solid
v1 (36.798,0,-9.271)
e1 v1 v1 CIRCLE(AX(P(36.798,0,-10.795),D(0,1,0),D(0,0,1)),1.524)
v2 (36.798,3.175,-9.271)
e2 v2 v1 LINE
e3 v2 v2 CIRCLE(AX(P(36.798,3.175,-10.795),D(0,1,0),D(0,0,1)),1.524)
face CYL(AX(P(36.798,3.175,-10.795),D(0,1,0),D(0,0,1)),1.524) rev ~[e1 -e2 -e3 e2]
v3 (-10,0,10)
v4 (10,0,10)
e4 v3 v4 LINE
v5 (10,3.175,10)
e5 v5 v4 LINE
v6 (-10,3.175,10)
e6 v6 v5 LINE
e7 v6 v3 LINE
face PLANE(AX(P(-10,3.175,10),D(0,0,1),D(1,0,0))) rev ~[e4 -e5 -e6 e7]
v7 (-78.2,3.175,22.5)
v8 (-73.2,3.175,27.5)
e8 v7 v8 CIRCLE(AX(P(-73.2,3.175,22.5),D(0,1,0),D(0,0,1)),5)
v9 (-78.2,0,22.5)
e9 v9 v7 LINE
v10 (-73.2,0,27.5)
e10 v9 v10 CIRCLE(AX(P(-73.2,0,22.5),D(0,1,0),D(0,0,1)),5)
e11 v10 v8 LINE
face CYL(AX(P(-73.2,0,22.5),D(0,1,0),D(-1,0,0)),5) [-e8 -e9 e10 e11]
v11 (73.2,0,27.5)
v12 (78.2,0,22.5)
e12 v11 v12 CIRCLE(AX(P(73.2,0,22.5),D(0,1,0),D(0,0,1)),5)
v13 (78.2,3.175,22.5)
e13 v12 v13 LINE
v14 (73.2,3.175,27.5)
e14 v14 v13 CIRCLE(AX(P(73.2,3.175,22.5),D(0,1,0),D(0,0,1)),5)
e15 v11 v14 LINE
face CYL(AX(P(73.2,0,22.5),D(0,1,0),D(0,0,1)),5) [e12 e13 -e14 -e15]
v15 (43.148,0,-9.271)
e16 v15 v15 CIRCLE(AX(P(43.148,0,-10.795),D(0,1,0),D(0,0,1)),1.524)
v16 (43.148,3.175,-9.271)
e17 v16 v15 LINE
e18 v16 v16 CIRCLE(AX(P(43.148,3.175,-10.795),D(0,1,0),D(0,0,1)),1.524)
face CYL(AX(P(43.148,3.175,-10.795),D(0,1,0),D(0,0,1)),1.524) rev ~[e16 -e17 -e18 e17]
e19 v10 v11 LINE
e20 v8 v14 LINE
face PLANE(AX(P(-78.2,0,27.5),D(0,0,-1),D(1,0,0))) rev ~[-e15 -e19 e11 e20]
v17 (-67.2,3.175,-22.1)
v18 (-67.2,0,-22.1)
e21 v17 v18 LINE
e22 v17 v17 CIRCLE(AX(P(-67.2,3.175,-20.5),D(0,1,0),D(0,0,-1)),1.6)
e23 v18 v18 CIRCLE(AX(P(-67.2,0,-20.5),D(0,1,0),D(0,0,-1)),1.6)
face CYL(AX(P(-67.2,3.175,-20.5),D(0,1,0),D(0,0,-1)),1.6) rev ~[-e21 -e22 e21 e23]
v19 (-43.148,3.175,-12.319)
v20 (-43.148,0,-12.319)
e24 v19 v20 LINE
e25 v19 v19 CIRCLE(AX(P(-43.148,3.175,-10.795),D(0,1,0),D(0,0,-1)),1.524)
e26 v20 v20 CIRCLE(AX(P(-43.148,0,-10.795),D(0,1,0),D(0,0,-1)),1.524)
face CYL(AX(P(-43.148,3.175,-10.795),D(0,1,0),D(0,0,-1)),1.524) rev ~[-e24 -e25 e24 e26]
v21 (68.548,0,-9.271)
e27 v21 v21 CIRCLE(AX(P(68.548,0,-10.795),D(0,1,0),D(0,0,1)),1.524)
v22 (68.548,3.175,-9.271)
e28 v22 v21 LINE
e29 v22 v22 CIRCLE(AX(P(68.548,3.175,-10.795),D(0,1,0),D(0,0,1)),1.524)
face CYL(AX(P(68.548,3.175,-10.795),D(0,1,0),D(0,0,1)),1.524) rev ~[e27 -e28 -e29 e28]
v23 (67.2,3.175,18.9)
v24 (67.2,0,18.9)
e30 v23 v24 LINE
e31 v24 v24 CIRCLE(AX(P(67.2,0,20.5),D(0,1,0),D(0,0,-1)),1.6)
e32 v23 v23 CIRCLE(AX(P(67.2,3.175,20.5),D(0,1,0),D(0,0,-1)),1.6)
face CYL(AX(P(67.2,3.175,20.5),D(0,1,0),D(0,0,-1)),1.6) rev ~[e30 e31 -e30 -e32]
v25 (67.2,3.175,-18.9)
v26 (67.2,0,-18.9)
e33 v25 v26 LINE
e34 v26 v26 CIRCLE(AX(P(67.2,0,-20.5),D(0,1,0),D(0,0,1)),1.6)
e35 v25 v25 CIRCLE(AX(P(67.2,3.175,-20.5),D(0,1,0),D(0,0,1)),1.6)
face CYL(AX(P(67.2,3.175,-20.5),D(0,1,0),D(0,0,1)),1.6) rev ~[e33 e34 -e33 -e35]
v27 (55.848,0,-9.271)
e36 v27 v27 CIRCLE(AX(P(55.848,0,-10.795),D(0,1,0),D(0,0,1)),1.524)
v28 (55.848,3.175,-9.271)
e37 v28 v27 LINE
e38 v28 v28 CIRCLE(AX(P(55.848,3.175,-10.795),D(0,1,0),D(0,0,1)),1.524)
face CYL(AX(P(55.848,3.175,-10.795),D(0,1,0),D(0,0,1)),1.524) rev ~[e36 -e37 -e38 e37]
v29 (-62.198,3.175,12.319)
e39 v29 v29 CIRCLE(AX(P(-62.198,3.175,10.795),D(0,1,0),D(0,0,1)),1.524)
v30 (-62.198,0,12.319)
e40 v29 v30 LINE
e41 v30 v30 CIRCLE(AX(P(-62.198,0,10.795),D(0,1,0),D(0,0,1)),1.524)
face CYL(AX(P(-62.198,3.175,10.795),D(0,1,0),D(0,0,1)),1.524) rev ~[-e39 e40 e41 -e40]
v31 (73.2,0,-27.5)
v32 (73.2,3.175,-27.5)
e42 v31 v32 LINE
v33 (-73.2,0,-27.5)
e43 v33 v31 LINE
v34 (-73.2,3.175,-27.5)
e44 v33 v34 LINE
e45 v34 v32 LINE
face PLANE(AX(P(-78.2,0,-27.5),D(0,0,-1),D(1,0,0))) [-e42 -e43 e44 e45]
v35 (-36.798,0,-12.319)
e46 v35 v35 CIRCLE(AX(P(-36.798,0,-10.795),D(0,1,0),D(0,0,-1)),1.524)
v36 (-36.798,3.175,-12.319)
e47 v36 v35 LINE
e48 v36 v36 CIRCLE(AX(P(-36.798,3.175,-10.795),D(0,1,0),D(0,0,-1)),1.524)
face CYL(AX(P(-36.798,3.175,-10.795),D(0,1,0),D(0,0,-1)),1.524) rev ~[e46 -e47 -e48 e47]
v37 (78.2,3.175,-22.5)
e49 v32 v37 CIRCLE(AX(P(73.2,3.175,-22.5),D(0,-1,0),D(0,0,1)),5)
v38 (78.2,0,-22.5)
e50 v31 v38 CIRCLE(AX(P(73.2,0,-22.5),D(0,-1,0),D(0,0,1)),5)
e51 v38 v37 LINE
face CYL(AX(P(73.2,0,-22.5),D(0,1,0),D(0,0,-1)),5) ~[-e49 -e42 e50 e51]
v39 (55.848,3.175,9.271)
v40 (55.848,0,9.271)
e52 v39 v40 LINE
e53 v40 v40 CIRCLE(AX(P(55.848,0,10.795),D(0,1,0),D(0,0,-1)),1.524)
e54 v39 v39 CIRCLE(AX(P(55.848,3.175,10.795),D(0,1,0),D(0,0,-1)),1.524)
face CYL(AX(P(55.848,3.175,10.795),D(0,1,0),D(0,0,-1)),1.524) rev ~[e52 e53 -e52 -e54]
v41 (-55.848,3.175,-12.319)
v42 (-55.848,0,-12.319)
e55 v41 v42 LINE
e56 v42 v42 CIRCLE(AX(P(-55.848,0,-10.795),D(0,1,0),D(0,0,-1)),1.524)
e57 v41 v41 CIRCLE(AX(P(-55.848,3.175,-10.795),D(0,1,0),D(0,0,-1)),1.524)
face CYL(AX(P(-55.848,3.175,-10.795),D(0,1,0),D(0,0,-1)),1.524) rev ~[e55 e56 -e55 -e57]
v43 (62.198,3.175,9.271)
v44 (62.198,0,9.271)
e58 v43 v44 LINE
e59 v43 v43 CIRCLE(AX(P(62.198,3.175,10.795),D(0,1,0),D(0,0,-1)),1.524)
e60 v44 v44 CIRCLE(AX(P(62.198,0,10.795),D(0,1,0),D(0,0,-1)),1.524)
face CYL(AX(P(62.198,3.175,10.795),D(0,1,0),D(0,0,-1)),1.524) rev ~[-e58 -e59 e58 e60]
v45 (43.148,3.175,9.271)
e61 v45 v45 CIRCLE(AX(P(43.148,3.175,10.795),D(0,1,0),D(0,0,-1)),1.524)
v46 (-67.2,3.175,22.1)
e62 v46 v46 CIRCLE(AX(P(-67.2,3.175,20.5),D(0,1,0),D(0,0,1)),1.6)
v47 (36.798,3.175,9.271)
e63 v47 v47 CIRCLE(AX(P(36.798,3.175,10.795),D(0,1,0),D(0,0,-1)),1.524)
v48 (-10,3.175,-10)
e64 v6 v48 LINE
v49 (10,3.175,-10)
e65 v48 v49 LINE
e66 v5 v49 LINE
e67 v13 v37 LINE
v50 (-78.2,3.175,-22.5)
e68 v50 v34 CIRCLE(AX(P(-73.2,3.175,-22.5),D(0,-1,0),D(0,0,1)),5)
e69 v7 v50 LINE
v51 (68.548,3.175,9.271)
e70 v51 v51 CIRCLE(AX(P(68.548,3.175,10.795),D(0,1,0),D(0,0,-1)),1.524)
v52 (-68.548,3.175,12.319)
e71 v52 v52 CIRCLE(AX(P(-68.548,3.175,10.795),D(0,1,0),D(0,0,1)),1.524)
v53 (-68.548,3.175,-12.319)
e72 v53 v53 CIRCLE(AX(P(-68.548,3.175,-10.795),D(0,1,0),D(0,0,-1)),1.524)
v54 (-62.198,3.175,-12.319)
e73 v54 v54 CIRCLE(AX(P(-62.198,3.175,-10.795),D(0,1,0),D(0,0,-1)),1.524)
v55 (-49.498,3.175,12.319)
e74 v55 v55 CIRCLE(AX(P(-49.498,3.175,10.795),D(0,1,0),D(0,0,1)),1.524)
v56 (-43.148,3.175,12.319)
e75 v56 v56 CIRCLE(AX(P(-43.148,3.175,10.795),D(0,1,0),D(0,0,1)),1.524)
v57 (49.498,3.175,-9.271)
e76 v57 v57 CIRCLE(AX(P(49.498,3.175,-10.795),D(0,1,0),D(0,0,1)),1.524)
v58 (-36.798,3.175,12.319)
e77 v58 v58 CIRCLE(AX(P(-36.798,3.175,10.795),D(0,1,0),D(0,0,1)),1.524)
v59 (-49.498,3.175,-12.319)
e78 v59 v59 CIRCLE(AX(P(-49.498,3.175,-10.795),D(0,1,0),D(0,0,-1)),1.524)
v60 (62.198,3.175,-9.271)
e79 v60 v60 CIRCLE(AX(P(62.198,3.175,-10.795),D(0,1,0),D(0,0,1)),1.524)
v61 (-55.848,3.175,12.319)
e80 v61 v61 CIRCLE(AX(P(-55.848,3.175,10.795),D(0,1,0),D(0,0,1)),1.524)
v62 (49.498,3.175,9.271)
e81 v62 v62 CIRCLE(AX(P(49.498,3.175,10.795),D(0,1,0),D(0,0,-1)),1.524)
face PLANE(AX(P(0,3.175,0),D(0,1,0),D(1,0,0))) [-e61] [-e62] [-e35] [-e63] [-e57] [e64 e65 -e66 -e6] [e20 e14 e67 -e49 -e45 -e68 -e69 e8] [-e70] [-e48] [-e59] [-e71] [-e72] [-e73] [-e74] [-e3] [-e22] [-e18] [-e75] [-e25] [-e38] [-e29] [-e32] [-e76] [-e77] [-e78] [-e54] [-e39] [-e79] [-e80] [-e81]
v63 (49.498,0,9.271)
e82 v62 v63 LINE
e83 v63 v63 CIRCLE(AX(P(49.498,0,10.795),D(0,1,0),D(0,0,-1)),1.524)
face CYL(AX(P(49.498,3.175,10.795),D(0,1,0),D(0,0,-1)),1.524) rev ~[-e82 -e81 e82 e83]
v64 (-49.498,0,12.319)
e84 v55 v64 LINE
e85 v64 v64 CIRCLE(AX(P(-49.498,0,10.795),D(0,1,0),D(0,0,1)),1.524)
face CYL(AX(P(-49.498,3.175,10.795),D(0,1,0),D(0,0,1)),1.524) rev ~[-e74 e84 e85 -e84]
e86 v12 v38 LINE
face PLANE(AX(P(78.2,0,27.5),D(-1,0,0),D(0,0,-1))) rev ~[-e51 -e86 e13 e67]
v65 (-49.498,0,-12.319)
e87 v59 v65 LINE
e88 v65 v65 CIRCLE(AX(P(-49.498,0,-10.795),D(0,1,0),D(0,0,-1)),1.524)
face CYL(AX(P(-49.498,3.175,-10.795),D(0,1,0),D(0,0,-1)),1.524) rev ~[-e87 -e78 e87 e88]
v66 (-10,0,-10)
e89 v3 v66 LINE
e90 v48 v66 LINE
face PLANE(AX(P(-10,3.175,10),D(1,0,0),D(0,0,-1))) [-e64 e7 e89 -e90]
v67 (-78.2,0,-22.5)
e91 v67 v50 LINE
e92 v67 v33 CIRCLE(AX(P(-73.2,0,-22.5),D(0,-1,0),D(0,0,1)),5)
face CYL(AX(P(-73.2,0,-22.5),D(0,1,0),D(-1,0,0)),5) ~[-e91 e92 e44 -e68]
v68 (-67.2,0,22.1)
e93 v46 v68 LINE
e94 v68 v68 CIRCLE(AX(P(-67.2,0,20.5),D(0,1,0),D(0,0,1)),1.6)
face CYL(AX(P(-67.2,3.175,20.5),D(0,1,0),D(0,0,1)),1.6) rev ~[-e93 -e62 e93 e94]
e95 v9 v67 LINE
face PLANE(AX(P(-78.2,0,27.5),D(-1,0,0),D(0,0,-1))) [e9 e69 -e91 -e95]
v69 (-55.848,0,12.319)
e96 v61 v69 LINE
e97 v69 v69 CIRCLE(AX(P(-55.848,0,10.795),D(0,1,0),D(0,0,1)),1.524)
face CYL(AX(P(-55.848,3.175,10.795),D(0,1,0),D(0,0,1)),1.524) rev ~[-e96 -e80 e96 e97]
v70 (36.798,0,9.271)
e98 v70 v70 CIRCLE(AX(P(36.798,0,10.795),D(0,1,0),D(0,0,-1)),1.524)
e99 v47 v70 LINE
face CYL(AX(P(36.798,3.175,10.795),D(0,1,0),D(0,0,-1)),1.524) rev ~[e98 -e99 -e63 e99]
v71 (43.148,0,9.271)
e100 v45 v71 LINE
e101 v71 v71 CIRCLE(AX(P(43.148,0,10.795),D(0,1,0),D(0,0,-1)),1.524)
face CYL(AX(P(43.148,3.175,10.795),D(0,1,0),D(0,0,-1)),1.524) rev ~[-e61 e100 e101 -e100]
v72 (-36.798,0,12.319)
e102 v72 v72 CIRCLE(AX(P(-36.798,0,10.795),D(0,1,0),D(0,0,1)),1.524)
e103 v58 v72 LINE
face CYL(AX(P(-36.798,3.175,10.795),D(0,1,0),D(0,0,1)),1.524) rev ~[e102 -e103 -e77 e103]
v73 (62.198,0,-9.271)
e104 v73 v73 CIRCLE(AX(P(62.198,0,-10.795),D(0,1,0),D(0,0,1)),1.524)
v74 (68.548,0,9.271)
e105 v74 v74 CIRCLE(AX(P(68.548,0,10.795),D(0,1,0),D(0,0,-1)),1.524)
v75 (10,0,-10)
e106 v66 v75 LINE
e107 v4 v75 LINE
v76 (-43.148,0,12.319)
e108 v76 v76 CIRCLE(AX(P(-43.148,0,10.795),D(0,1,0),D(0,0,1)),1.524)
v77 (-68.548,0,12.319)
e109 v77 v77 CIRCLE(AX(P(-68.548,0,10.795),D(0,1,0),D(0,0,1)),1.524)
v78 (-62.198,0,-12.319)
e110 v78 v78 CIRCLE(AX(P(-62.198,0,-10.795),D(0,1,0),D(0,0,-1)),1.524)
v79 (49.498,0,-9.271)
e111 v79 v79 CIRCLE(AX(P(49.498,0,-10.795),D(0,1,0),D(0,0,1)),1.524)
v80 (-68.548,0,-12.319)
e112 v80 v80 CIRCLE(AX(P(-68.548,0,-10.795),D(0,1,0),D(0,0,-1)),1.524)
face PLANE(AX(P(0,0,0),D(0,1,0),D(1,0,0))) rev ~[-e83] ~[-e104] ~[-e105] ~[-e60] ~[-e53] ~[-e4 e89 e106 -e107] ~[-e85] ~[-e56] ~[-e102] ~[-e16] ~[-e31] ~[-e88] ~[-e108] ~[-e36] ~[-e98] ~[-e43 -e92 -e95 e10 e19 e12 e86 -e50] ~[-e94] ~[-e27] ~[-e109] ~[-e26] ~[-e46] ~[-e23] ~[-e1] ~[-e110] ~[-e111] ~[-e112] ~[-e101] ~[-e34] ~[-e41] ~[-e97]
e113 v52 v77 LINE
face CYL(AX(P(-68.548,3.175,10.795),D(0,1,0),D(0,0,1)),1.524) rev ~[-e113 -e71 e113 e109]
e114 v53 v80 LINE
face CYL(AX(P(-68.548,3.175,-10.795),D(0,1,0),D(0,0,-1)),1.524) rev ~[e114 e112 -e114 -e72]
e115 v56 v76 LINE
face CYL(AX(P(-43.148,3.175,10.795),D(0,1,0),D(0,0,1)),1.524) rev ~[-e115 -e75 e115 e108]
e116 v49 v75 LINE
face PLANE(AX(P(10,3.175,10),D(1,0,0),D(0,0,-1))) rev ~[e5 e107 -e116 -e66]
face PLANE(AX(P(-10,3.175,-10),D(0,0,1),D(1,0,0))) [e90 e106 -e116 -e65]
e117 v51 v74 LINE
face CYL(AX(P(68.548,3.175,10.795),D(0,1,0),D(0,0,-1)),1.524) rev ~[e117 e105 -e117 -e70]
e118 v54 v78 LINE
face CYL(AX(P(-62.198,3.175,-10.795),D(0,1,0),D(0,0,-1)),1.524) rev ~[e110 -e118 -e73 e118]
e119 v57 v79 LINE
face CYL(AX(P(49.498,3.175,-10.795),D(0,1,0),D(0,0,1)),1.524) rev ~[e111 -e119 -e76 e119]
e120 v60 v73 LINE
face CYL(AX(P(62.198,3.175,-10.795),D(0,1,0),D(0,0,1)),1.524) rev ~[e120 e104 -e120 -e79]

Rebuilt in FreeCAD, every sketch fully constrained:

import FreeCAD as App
import Part
import Sketcher
from FreeCAD import Vector


def edges_at(feature, points):
    """Names of the edges that pass closest to the given points."""
    edges = feature.Shape.Edges
    near = lambda p: min(range(len(edges)), key=lambda i: edges[i].distToShape(Part.Vertex(*p))[0])
    return sorted({f"Edge{near(p) + 1}" for p in points})

doc = App.newDocument("Part")
params = doc.addObject("Spreadsheet::Sheet", "Params")
for row, (alias, value) in enumerate([
    ("sketch1_height", "55 mm"),
    ("sketch1_width", "156.4 mm"),
    ("pad1_length", "3.175 mm"),
    ("sketch3_diameter", "3.2 mm"),
    ("sketch4_width", "20 mm"),
    ("fillet_radius", "5 mm"),
], start=1):
    params.set(f"A{row}", alias)
    params.set(f"B{row}", "=" + value)
    params.setAlias(f"B{row}", alias)

body = doc.addObject("PartDesign::Body", "Body")

sketch1 = body.newObject("Sketcher::SketchObject", "Sketch")
sketch1.AttachmentSupport = (doc.getObject("XZ_Plane"), [""])
sketch1.MapMode = "FlatFace"
sketch1.addGeometry([
    Part.LineSegment(Vector(-78, -28, 0), Vector(-78, 28, 0)),
    Part.LineSegment(Vector(-78, 28, 0), Vector(78, 28, 0)),
    Part.LineSegment(Vector(78, 28, 0), Vector(78, -28, 0)),
    Part.LineSegment(Vector(78, -28, 0), Vector(-78, -28, 0)),
], False)
sketch1.addConstraint([
    Sketcher.Constraint("Coincident", 0, 2, 1, 1),
    Sketcher.Constraint("Coincident", 1, 2, 2, 1),
    Sketcher.Constraint("Coincident", 2, 2, 3, 1),
    Sketcher.Constraint("Coincident", 3, 2, 0, 1),
    Sketcher.Constraint("Vertical", 0),
    Sketcher.Constraint("Horizontal", 1),
    Sketcher.Constraint("Vertical", 2),
    Sketcher.Constraint("Horizontal", 3),
    Sketcher.Constraint("Symmetric", 0, 2, 2, 2, -1, 1),
    Sketcher.Constraint("DistanceY", 0, 1, 0, 2, 55.0),
    Sketcher.Constraint("DistanceX", 1, 1, 1, 2, 156.4),
])
sketch1.setExpression("Constraints[9]", "Params.sketch1_height")
sketch1.setExpression("Constraints[10]", "Params.sketch1_width")
pad1 = body.newObject("PartDesign::Pad", "Pad")
pad1.Profile = sketch1
pad1.setExpression("Length", "Params.pad1_length")
pad1.Reversed = True

sketch2 = body.newObject("Sketcher::SketchObject", "Sketch001")
sketch2.AttachmentSupport = (doc.getObject("XZ_Plane"), [""])
sketch2.MapMode = "FlatFace"
sketch2.AttachmentOffset = App.Placement(Vector(0, 0, -3.175), App.Rotation())
sketch2.addGeometry([
    Part.Circle(Vector(-68.5, 10.8, 0), Vector(0, 0, 1), 1.5),
    Part.Circle(Vector(-62.2, 10.8, 0), Vector(0, 0, 1), 1.5),
    Part.Circle(Vector(-55.8, 10.8, 0), Vector(0, 0, 1), 1.5),
    Part.Circle(Vector(-49.5, 10.8, 0), Vector(0, 0, 1), 1.5),
    Part.Circle(Vector(-43.1, 10.8, 0), Vector(0, 0, 1), 1.5),
    Part.Circle(Vector(-36.8, 10.8, 0), Vector(0, 0, 1), 1.5),
    Part.Circle(Vector(-68.5, -10.8, 0), Vector(0, 0, 1), 1.5),
    Part.Circle(Vector(-62.2, -10.8, 0), Vector(0, 0, 1), 1.5),
    Part.Circle(Vector(-55.8, -10.8, 0), Vector(0, 0, 1), 1.5),
    Part.Circle(Vector(-49.5, -10.8, 0), Vector(0, 0, 1), 1.5),
    Part.Circle(Vector(-43.1, -10.8, 0), Vector(0, 0, 1), 1.5),
    Part.Circle(Vector(-36.8, -10.8, 0), Vector(0, 0, 1), 1.5),
    Part.Circle(Vector(36.8, -10.8, 0), Vector(0, 0, 1), 1.5),
    Part.Circle(Vector(43.1, -10.8, 0), Vector(0, 0, 1), 1.5),
    Part.Circle(Vector(49.5, -10.8, 0), Vector(0, 0, 1), 1.5),
    Part.Circle(Vector(55.8, -10.8, 0), Vector(0, 0, 1), 1.5),
    Part.Circle(Vector(62.2, -10.8, 0), Vector(0, 0, 1), 1.5),
    Part.Circle(Vector(68.5, -10.8, 0), Vector(0, 0, 1), 1.5),
    Part.Circle(Vector(68.5, 10.8, 0), Vector(0, 0, 1), 1.5),
    Part.Circle(Vector(62.2, 10.8, 0), Vector(0, 0, 1), 1.5),
    Part.Circle(Vector(55.8, 10.8, 0), Vector(0, 0, 1), 1.5),
    Part.Circle(Vector(49.5, 10.8, 0), Vector(0, 0, 1), 1.5),
    Part.Circle(Vector(43.1, 10.8, 0), Vector(0, 0, 1), 1.5),
    Part.Circle(Vector(36.8, 10.8, 0), Vector(0, 0, 1), 1.5),
], False)
sketch2.addConstraint([
    Sketcher.Constraint("Equal", 0, 1),
    Sketcher.Constraint("Equal", 1, 2),
    Sketcher.Constraint("Equal", 2, 3),
    Sketcher.Constraint("Equal", 3, 4),
    Sketcher.Constraint("Equal", 4, 5),
    Sketcher.Constraint("Equal", 5, 6),
    Sketcher.Constraint("Equal", 6, 7),
    Sketcher.Constraint("Equal", 7, 8),
    Sketcher.Constraint("Equal", 8, 9),
    Sketcher.Constraint("Equal", 9, 10),
    Sketcher.Constraint("Equal", 10, 11),
    Sketcher.Constraint("Equal", 11, 12),
    Sketcher.Constraint("Equal", 12, 13),
    Sketcher.Constraint("Equal", 13, 14),
    Sketcher.Constraint("Equal", 14, 15),
    Sketcher.Constraint("Equal", 15, 16),
    Sketcher.Constraint("Equal", 16, 17),
    Sketcher.Constraint("Equal", 17, 18),
    Sketcher.Constraint("Equal", 18, 19),
    Sketcher.Constraint("Equal", 19, 20),
    Sketcher.Constraint("Equal", 20, 21),
    Sketcher.Constraint("Equal", 21, 22),
    Sketcher.Constraint("Equal", 22, 23),
    Sketcher.Constraint("Symmetric", 5, 3, 12, 3, -1, 1),
    Sketcher.Constraint("Symmetric", 4, 3, 13, 3, -1, 1),
    Sketcher.Constraint("Symmetric", 3, 3, 14, 3, -1, 1),
    Sketcher.Constraint("Symmetric", 2, 3, 15, 3, -1, 1),
    Sketcher.Constraint("Symmetric", 1, 3, 16, 3, -1, 1),
    Sketcher.Constraint("Symmetric", 0, 3, 17, 3, -1, 1),
    Sketcher.Constraint("Symmetric", 6, 3, 18, 3, -1, 1),
    Sketcher.Constraint("Symmetric", 7, 3, 19, 3, -1, 1),
    Sketcher.Constraint("Symmetric", 8, 3, 20, 3, -1, 1),
    Sketcher.Constraint("Symmetric", 9, 3, 21, 3, -1, 1),
    Sketcher.Constraint("Symmetric", 10, 3, 22, 3, -1, 1),
    Sketcher.Constraint("Symmetric", 11, 3, 23, 3, -1, 1),
    Sketcher.Constraint("Symmetric", 11, 3, 12, 3, -2),
    Sketcher.Constraint("Symmetric", 10, 3, 13, 3, -2),
    Sketcher.Constraint("Symmetric", 9, 3, 14, 3, -2),
    Sketcher.Constraint("Symmetric", 8, 3, 15, 3, -2),
    Sketcher.Constraint("Symmetric", 7, 3, 16, 3, -2),
    Sketcher.Constraint("Symmetric", 6, 3, 17, 3, -2),
    Sketcher.Constraint("Horizontal", 0, 3, 1, 3),
    Sketcher.Constraint("Horizontal", 1, 3, 2, 3),
    Sketcher.Constraint("Horizontal", 2, 3, 3, 3),
    Sketcher.Constraint("Horizontal", 3, 3, 4, 3),
    Sketcher.Constraint("Horizontal", 4, 3, 5, 3),
    Sketcher.Constraint("Diameter", 0, 3.048),
    Sketcher.Constraint("DistanceX", 0, 3, 2, 3, 12.7),
    Sketcher.Constraint("DistanceX", 1, 3, 3, 3, 12.7),
    Sketcher.Constraint("DistanceX", 2, 3, 4, 3, 12.7),
    Sketcher.Constraint("DistanceX", 3, 3, 5, 3, 12.7),
    Sketcher.Constraint("DistanceX", 0, 3, 1, 3, 6.35),
    Sketcher.Constraint("DistanceY", 6, 3, 0, 3, 21.59),
    Sketcher.Constraint("DistanceX", 0, 3, -1, 1, 68.548),
])
pocket1 = body.newObject("PartDesign::Pocket", "Pocket")
pocket1.Profile = sketch2
pocket1.Type = "ThroughAll"
pocket1.Reversed = True

sketch3 = body.newObject("Sketcher::SketchObject", "Sketch002")
sketch3.AttachmentSupport = (doc.getObject("XZ_Plane"), [""])
sketch3.MapMode = "FlatFace"
sketch3.AttachmentOffset = App.Placement(Vector(0, 0, -3.175), App.Rotation())
sketch3.addGeometry([
    Part.Circle(Vector(-67.2, 20.5, 0), Vector(0, 0, 1), 1.6),
    Part.Circle(Vector(-67.2, -20.5, 0), Vector(0, 0, 1), 1.6),
    Part.Circle(Vector(67.2, -20.5, 0), Vector(0, 0, 1), 1.6),
    Part.Circle(Vector(67.2, 20.5, 0), Vector(0, 0, 1), 1.6),
], False)
sketch3.addConstraint([
    Sketcher.Constraint("Equal", 0, 1),
    Sketcher.Constraint("Equal", 1, 2),
    Sketcher.Constraint("Equal", 2, 3),
    Sketcher.Constraint("Symmetric", 0, 3, 2, 3, -1, 1),
    Sketcher.Constraint("Symmetric", 1, 3, 3, 3, -1, 1),
    Sketcher.Constraint("Symmetric", 1, 3, 2, 3, -2),
    Sketcher.Constraint("Diameter", 0, 3.2),
    Sketcher.Constraint("DistanceY", 1, 3, 0, 3, 41.0),
    Sketcher.Constraint("DistanceX", 0, 3, -1, 1, 67.2),
])
sketch3.setExpression("Constraints[6]", "Params.sketch3_diameter")
pocket2 = body.newObject("PartDesign::Pocket", "Pocket001")
pocket2.Profile = sketch3
pocket2.Type = "ThroughAll"
pocket2.Reversed = True

sketch4 = body.newObject("Sketcher::SketchObject", "Sketch003")
sketch4.AttachmentSupport = (doc.getObject("XZ_Plane"), [""])
sketch4.MapMode = "FlatFace"
sketch4.AttachmentOffset = App.Placement(Vector(0, 0, -3.175), App.Rotation())
sketch4.addGeometry([
    Part.LineSegment(Vector(-10, -10, 0), Vector(-10, 10, 0)),
    Part.LineSegment(Vector(-10, 10, 0), Vector(10, 10, 0)),
    Part.LineSegment(Vector(10, 10, 0), Vector(10, -10, 0)),
    Part.LineSegment(Vector(10, -10, 0), Vector(-10, -10, 0)),
], False)
sketch4.addConstraint([
    Sketcher.Constraint("Coincident", 0, 2, 1, 1),
    Sketcher.Constraint("Coincident", 1, 2, 2, 1),
    Sketcher.Constraint("Coincident", 2, 2, 3, 1),
    Sketcher.Constraint("Coincident", 3, 2, 0, 1),
    Sketcher.Constraint("Vertical", 0),
    Sketcher.Constraint("Horizontal", 1),
    Sketcher.Constraint("Vertical", 2),
    Sketcher.Constraint("Horizontal", 3),
    Sketcher.Constraint("Symmetric", 0, 2, 2, 2, -1, 1),
    Sketcher.Constraint("Equal", 3, 0),
    Sketcher.Constraint("DistanceX", 1, 1, 1, 2, 20.0),
])
sketch4.setExpression("Constraints[10]", "Params.sketch4_width")
pocket3 = body.newObject("PartDesign::Pocket", "Pocket002")
pocket3.Profile = sketch4
pocket3.Type = "ThroughAll"
pocket3.Reversed = True
doc.recompute()

fillet = body.newObject("PartDesign::Fillet", "Fillet")
fillet.Base = (pocket3, edges_at(pocket3, [
    (78.2, 1.587, 27.5),
    (-78.2, 1.587, 27.5),
    (-78.2, 1.587, -27.5),
    (78.2, 1.587, -27.5),
]))
fillet.setExpression("Radius", "Params.fillet_radius")

doc.recompute()
